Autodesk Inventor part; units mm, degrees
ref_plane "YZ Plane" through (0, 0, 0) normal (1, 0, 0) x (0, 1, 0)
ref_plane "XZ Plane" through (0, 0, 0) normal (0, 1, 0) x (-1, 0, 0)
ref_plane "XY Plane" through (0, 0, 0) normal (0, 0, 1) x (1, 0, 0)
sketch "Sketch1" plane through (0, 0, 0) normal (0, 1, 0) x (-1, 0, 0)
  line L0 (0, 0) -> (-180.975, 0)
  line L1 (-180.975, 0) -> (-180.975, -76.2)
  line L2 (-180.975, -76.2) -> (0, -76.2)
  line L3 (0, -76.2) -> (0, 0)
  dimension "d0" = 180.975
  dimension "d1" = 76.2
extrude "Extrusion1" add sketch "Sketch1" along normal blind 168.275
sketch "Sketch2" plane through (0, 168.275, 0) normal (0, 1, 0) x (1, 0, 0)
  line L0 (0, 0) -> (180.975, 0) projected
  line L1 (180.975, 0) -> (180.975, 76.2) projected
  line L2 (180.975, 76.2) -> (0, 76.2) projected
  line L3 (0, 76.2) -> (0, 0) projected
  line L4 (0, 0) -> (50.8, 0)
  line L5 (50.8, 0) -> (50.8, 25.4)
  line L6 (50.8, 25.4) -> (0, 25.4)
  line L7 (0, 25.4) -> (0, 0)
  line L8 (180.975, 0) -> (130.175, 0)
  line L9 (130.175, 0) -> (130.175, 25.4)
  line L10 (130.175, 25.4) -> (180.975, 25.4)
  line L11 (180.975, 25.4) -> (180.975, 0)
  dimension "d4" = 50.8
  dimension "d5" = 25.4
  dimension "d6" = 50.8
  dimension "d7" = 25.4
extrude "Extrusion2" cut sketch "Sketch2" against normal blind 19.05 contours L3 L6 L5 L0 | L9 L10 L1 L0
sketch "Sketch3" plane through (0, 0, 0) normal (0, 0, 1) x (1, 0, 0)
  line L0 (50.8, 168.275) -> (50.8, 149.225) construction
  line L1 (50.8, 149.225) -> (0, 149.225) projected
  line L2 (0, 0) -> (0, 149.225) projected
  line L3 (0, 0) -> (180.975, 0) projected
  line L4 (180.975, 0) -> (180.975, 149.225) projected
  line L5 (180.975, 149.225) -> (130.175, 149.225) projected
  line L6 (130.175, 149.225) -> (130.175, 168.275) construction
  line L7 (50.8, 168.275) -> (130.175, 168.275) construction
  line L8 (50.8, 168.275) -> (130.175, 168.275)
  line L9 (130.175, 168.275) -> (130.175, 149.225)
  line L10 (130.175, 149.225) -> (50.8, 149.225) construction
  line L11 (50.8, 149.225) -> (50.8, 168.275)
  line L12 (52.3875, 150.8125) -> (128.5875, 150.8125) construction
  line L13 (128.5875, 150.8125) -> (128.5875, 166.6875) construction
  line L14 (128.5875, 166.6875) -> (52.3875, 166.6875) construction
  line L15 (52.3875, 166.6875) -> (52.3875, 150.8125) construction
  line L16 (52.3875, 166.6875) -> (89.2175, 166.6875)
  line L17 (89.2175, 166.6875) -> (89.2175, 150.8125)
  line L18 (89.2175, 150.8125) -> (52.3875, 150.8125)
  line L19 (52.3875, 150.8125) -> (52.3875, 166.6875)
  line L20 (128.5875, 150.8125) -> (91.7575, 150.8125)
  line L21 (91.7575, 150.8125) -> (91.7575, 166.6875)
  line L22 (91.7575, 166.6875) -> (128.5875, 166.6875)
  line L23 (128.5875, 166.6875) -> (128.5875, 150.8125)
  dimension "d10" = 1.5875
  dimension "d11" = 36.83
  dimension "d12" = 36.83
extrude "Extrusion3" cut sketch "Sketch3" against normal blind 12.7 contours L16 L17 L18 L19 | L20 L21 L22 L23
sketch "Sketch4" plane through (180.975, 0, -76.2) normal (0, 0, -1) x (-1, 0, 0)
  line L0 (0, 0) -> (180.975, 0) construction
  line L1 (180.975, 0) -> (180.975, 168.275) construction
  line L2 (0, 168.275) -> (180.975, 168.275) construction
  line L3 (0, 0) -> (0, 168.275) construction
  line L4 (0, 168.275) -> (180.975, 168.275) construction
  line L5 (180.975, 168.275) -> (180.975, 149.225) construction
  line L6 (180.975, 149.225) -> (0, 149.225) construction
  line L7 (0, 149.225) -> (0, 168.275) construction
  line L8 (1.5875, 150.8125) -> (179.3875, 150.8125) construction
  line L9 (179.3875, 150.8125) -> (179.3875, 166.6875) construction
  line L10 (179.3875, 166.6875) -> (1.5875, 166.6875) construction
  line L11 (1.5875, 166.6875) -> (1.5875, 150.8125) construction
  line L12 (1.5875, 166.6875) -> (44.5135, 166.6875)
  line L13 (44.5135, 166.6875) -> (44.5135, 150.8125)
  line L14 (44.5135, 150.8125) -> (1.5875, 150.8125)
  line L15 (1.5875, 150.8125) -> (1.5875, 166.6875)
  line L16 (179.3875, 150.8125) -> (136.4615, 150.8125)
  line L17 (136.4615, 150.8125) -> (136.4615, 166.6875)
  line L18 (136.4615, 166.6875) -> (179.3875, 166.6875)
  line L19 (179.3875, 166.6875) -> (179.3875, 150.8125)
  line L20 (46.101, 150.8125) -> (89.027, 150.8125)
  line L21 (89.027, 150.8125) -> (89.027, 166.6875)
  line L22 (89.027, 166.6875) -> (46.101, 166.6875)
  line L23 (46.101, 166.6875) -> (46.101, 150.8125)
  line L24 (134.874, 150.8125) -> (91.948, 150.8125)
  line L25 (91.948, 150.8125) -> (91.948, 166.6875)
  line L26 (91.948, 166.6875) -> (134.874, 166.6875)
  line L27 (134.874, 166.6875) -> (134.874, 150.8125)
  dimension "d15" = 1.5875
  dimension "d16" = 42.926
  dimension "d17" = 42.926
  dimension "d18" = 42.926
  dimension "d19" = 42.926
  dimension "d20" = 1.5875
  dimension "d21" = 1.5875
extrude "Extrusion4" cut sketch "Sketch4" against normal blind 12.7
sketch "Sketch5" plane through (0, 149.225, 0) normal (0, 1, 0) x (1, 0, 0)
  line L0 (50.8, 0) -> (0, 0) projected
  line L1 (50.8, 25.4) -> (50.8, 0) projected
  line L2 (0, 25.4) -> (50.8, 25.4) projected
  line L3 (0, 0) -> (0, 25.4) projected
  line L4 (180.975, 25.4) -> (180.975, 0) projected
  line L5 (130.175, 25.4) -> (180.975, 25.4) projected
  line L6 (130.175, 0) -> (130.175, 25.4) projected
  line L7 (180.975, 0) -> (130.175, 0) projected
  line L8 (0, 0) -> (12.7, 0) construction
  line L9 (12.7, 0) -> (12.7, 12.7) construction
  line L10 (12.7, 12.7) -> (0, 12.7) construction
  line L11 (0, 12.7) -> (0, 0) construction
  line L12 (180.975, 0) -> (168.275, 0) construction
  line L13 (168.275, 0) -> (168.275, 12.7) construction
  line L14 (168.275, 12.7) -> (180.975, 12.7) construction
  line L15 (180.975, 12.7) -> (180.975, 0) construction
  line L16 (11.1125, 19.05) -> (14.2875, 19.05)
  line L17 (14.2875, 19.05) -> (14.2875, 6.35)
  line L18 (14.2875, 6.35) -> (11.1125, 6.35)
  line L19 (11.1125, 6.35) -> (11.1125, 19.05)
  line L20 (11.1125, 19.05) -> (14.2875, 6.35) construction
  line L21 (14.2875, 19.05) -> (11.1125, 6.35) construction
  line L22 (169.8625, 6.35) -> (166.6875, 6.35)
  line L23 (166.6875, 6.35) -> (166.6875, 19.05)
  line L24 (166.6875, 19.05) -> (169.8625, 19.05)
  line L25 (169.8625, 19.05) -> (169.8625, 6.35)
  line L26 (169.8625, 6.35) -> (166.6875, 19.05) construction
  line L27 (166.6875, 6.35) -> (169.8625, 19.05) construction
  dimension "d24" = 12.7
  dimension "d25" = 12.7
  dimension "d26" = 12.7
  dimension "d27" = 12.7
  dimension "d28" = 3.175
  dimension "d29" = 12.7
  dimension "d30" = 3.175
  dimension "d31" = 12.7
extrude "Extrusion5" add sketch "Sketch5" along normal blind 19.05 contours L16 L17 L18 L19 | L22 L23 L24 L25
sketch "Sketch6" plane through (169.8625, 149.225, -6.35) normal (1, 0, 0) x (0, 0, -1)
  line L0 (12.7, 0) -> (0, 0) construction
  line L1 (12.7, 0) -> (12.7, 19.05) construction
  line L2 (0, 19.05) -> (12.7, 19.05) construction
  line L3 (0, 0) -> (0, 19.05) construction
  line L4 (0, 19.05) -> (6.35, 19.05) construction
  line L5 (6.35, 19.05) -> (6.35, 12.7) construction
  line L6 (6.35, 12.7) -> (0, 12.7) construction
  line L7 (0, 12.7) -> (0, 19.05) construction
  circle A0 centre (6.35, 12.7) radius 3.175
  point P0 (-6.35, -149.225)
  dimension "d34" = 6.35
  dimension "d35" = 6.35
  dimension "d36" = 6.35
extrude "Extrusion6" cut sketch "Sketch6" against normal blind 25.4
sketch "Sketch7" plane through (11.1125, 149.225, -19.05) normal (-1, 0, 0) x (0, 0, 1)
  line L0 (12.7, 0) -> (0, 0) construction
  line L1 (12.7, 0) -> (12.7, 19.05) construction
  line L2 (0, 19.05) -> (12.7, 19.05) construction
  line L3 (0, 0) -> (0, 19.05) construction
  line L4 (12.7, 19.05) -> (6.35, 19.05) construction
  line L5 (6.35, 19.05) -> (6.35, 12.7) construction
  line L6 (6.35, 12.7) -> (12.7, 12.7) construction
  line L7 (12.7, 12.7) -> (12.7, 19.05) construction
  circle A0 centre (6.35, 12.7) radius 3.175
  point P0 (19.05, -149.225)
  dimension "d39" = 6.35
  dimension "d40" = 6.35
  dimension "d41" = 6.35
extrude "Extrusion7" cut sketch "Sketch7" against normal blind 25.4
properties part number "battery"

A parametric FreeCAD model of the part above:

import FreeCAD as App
import Part
import Sketcher
Q = App.Units.Quantity


def add_polygon(sketch, points):
    """Adds a closed chain of lines whose ends are joined by coincident constraints."""
    first, n = sketch.GeometryCount, len(points)
    for a, b in zip(points, points[1:] + points[:1]):
        sketch.addGeometry(Part.LineSegment(App.Vector(*a, 0), App.Vector(*b, 0)), False)
    for i in range(n):
        sketch.addConstraint(Sketcher.Constraint("Coincident", first + i, 2, first + (i + 1) % n, 1))

doc = App.newDocument("Part")
body = doc.addObject("PartDesign::Body", "Body")

# Sketch on XZ plane
sketch1 = body.newObject("Sketcher::SketchObject", "Sketch")
sketch1.AttachmentSupport = (doc.getObject("XZ_Plane"), [""])
sketch1.MapMode = "FlatFace"
add_polygon(sketch1, [(0, -76), (0, 0), (181, 0), (181, -76)])  # lines 0-3
sketch1.addConstraint([
    Sketcher.Constraint("Vertical", 0),
    Sketcher.Constraint("Horizontal", 1),
    Sketcher.Constraint("Vertical", 2),
    Sketcher.Constraint("Horizontal", 3),
    Sketcher.Constraint("Coincident", 0, 2, -1, 1),
    Sketcher.Constraint("DistanceY", 0, 1, 0, 2, Q("3 in")),
    Sketcher.Constraint("DistanceX", 1, 1, 1, 2, Q("7.125 in")),
])
pad1 = body.newObject("PartDesign::Pad", "Pad")
pad1.Profile = sketch1
pad1.Length = Q("6.625 in")
pad1.Reversed = True

# Sketch on XZ plane
sketch2 = body.newObject("Sketcher::SketchObject", "Sketch001")
sketch2.AttachmentSupport = (doc.getObject("XZ_Plane"), [""])
sketch2.MapMode = "FlatFace"
sketch2.AttachmentOffset = App.Placement(App.Vector(0, 0, -6.625 * 25.4), App.Rotation())
add_polygon(sketch2, [(0, -25), (0, 0), (51, 0), (51, -25)])  # lines 0-3
add_polygon(sketch2, [(130, -25), (130, 0), (181, 0), (181, -25)])  # lines 4-7
sketch2.addConstraint([
    Sketcher.Constraint("Vertical", 0),
    Sketcher.Constraint("Horizontal", 1),
    Sketcher.Constraint("Vertical", 2),
    Sketcher.Constraint("Horizontal", 3),
    Sketcher.Constraint("Vertical", 4),
    Sketcher.Constraint("Horizontal", 5),
    Sketcher.Constraint("Vertical", 6),
    Sketcher.Constraint("Horizontal", 7),
    Sketcher.Constraint("Coincident", 0, 2, -1, 1),
    Sketcher.Constraint("PointOnObject", 4, 2, -1),
    Sketcher.Constraint("Horizontal", 3, 2, 6, 2),
    Sketcher.Constraint("Equal", 3, 5),
    Sketcher.Constraint("DistanceX", 1, 1, 1, 2, Q("2 in")),
    Sketcher.Constraint("DistanceY", 0, 1, 0, 2, Q("1 in")),
    Sketcher.Constraint("DistanceX", -1, 1, 4, 2, Q("5.125 in")),
])
pocket1 = body.newObject("PartDesign::Pocket", "Pocket")
pocket1.Profile = sketch2
pocket1.Length = Q("0.75 in")
pocket1.Reversed = True

# Sketch on XY plane
sketch3 = body.newObject("Sketcher::SketchObject", "Sketch002")
sketch3.AttachmentSupport = (doc.getObject("XY_Plane"), [""])
sketch3.MapMode = "FlatFace"
add_polygon(sketch3, [(89, 167), (52, 167), (52, 151), (89, 151)])  # lines 0-3
add_polygon(sketch3, [(92, 151), (129, 151), (129, 167), (92, 167)])  # lines 4-7
sketch3.addConstraint([
    Sketcher.Constraint("Horizontal", 0),
    Sketcher.Constraint("Vertical", 1),
    Sketcher.Constraint("Horizontal", 2),
    Sketcher.Constraint("Vertical", 3),
    Sketcher.Constraint("Horizontal", 4),
    Sketcher.Constraint("Vertical", 5),
    Sketcher.Constraint("Horizontal", 6),
    Sketcher.Constraint("Vertical", 7),
    Sketcher.Constraint("Horizontal", 2, 2, 4, 2),
    Sketcher.Constraint("Horizontal", 3, 2, 5, 2),
    Sketcher.Constraint("Equal", 2, 4),
    Sketcher.Constraint("DistanceX", 0, 2, 0, 1, Q("1.45 in")),
    Sketcher.Constraint("DistanceX", 1, 2, 4, 2, Q("3 in")),
    Sketcher.Constraint("DistanceY", 1, 2, 1, 1, Q("0.625 in")),
    Sketcher.Constraint("DistanceX", -1, 1, 0, 2, Q("2.0625 in")),
    Sketcher.Constraint("DistanceY", -1, 1, 0, 2, Q("6.5625 in")),
])
pocket2 = body.newObject("PartDesign::Pocket", "Pocket001")
pocket2.Profile = sketch3
pocket2.Length = Q("0.5 in")

# Sketch on XY plane
sketch4 = body.newObject("Sketcher::SketchObject", "Sketch003")
sketch4.AttachmentSupport = (doc.getObject("XY_Plane"), [""])
sketch4.MapMode = "FlatFace"
sketch4.AttachmentOffset = App.Placement(App.Vector(0, 0, -3 * 25.4), App.Rotation())
add_polygon(sketch4, [(136, 167), (179, 167), (179, 151), (136, 151)])  # lines 0-3
add_polygon(sketch4, [(45, 151), (2, 151), (2, 167), (45, 167)])  # lines 4-7
add_polygon(sketch4, [(135, 167), (135, 151), (92, 151), (92, 167)])  # lines 8-11
add_polygon(sketch4, [(89, 151), (46, 151), (46, 167), (89, 167)])  # lines 12-15
sketch4.addConstraint([
    Sketcher.Constraint("Horizontal", 0),
    Sketcher.Constraint("Vertical", 1),
    Sketcher.Constraint("Horizontal", 2),
    Sketcher.Constraint("Vertical", 3),
    Sketcher.Constraint("Horizontal", 4),
    Sketcher.Constraint("Vertical", 5),
    Sketcher.Constraint("Horizontal", 6),
    Sketcher.Constraint("Vertical", 7),
    Sketcher.Constraint("Vertical", 8),
    Sketcher.Constraint("Horizontal", 9),
    Sketcher.Constraint("Vertical", 10),
    Sketcher.Constraint("Horizontal", 11),
    Sketcher.Constraint("Horizontal", 12),
    Sketcher.Constraint("Vertical", 13),
    Sketcher.Constraint("Horizontal", 14),
    Sketcher.Constraint("Vertical", 15),
    Sketcher.Constraint("Horizontal", 2, 2, 4, 2),
    Sketcher.Constraint("Horizontal", 3, 2, 5, 2),
    Sketcher.Constraint("Horizontal", 7, 2, 8, 2),
    Sketcher.Constraint("Horizontal", 6, 2, 10, 2),
    Sketcher.Constraint("Horizontal", 9, 2, 12, 2),
    Sketcher.Constraint("Horizontal", 11, 2, 13, 2),
    Sketcher.Constraint("Equal", 2, 4),
    Sketcher.Constraint("Equal", 6, 9),
    Sketcher.Constraint("Equal", 11, 12),
    Sketcher.Constraint("DistanceX", 0, 1, 0, 2, Q("1.69 in")),
    Sketcher.Constraint("DistanceX", -1, 1, 4, 2, Q("0.0625 in")),
    Sketcher.Constraint("DistanceX", 4, 2, 1, 2, Q("7 in")),
    Sketcher.Constraint("DistanceX", 8, 2, 2, 2, Q("0.0625 in")),
    Sketcher.Constraint("DistanceX", 7, 2, 12, 2, Q("0.0625 in")),
    Sketcher.Constraint("DistanceY", 1, 2, 1, 1, Q("0.625 in")),
    Sketcher.Constraint("DistanceY", -1, 1, 0, 2, Q("6.5625 in")),
])
pocket3 = body.newObject("PartDesign::Pocket", "Pocket002")
pocket3.Profile = sketch4
pocket3.Length = Q("0.5 in")
pocket3.Reversed = True

# Sketch on XZ plane
sketch5 = body.newObject("Sketcher::SketchObject", "Sketch004")
sketch5.AttachmentSupport = (doc.getObject("XZ_Plane"), [""])
sketch5.MapMode = "FlatFace"
sketch5.AttachmentOffset = App.Placement(App.Vector(0, 0, -5.875 * 25.4), App.Rotation())
add_polygon(sketch5, [(14.3, -19.1), (11.1, -19.1), (11.1, -6.3), (14.3, -6.3)])  # lines 0-3
add_polygon(sketch5, [(166.7, -6.3), (169.9, -6.3), (169.9, -19.1), (166.7, -19.1)])  # lines 4-7
sketch5.addConstraint([
    Sketcher.Constraint("Horizontal", 0),
    Sketcher.Constraint("Vertical", 1),
    Sketcher.Constraint("Horizontal", 2),
    Sketcher.Constraint("Vertical", 3),
    Sketcher.Constraint("Horizontal", 4),
    Sketcher.Constraint("Vertical", 5),
    Sketcher.Constraint("Horizontal", 6),
    Sketcher.Constraint("Vertical", 7),
    Sketcher.Constraint("Horizontal", 2, 2, 4, 2),
    Sketcher.Constraint("Horizontal", 3, 2, 5, 2),
    Sketcher.Constraint("Equal", 2, 4),
    Sketcher.Constraint("DistanceY", 1, 1, 1, 2, Q("0.5 in")),
    Sketcher.Constraint("DistanceX", 0, 2, 0, 1, Q("0.125 in")),
    Sketcher.Constraint("DistanceX", 3, 2, 6, 2, Q("6 in")),
    Sketcher.Constraint("DistanceY", 0, 2, -1, 1, Q("0.75 in")),
    Sketcher.Constraint("DistanceX", -1, 1, 0, 2, Q("0.4375 in")),
])
pad2 = body.newObject("PartDesign::Pad", "Pad001")
pad2.Profile = sketch5
pad2.Length = Q("0.75 in")
pad2.Reversed = True

# Sketch on YZ plane
sketch6 = body.newObject("Sketcher::SketchObject", "Sketch005")
sketch6.AttachmentSupport = (doc.getObject("YZ_Plane"), [""])
sketch6.MapMode = "FlatFace"
sketch6.AttachmentOffset = App.Placement(App.Vector(0, 0, 6.6875 * 25.4), App.Rotation())
sketch6.addGeometry(Part.Circle(App.Vector(161.9, -12.7, 0), App.Vector(0, 0, 1), 3.2), False)
sketch6.addConstraint([
    Sketcher.Constraint("Diameter", 0, Q("0.25 in")),
    Sketcher.Constraint("DistanceY", 0, 3, -1, 1, Q("0.5 in")),
    Sketcher.Constraint("DistanceX", -1, 1, 0, 3, Q("6.375 in")),
])
pocket4 = body.newObject("PartDesign::Pocket", "Pocket003")
pocket4.Profile = sketch6
pocket4.Length = Q("1 in")

# Sketch on YZ plane
sketch7 = body.newObject("Sketcher::SketchObject", "Sketch006")
sketch7.AttachmentSupport = (doc.getObject("YZ_Plane"), [""])
sketch7.MapMode = "FlatFace"
sketch7.AttachmentOffset = App.Placement(App.Vector(0, 0, 0.4375 * 25.4), App.Rotation())
sketch7.addGeometry(Part.Circle(App.Vector(161.9, -12.7, 0), App.Vector(0, 0, 1), 3.2), False)
sketch7.addConstraint([
    Sketcher.Constraint("Diameter", 0, Q("0.25 in")),
    Sketcher.Constraint("DistanceY", 0, 3, -1, 1, Q("0.5 in")),
    Sketcher.Constraint("DistanceX", -1, 1, 0, 3, Q("6.375 in")),
])
pocket5 = body.newObject("PartDesign::Pocket", "Pocket004")
pocket5.Profile = sketch7
pocket5.Length = Q("1 in")
pocket5.Reversed = True

doc.recompute()
